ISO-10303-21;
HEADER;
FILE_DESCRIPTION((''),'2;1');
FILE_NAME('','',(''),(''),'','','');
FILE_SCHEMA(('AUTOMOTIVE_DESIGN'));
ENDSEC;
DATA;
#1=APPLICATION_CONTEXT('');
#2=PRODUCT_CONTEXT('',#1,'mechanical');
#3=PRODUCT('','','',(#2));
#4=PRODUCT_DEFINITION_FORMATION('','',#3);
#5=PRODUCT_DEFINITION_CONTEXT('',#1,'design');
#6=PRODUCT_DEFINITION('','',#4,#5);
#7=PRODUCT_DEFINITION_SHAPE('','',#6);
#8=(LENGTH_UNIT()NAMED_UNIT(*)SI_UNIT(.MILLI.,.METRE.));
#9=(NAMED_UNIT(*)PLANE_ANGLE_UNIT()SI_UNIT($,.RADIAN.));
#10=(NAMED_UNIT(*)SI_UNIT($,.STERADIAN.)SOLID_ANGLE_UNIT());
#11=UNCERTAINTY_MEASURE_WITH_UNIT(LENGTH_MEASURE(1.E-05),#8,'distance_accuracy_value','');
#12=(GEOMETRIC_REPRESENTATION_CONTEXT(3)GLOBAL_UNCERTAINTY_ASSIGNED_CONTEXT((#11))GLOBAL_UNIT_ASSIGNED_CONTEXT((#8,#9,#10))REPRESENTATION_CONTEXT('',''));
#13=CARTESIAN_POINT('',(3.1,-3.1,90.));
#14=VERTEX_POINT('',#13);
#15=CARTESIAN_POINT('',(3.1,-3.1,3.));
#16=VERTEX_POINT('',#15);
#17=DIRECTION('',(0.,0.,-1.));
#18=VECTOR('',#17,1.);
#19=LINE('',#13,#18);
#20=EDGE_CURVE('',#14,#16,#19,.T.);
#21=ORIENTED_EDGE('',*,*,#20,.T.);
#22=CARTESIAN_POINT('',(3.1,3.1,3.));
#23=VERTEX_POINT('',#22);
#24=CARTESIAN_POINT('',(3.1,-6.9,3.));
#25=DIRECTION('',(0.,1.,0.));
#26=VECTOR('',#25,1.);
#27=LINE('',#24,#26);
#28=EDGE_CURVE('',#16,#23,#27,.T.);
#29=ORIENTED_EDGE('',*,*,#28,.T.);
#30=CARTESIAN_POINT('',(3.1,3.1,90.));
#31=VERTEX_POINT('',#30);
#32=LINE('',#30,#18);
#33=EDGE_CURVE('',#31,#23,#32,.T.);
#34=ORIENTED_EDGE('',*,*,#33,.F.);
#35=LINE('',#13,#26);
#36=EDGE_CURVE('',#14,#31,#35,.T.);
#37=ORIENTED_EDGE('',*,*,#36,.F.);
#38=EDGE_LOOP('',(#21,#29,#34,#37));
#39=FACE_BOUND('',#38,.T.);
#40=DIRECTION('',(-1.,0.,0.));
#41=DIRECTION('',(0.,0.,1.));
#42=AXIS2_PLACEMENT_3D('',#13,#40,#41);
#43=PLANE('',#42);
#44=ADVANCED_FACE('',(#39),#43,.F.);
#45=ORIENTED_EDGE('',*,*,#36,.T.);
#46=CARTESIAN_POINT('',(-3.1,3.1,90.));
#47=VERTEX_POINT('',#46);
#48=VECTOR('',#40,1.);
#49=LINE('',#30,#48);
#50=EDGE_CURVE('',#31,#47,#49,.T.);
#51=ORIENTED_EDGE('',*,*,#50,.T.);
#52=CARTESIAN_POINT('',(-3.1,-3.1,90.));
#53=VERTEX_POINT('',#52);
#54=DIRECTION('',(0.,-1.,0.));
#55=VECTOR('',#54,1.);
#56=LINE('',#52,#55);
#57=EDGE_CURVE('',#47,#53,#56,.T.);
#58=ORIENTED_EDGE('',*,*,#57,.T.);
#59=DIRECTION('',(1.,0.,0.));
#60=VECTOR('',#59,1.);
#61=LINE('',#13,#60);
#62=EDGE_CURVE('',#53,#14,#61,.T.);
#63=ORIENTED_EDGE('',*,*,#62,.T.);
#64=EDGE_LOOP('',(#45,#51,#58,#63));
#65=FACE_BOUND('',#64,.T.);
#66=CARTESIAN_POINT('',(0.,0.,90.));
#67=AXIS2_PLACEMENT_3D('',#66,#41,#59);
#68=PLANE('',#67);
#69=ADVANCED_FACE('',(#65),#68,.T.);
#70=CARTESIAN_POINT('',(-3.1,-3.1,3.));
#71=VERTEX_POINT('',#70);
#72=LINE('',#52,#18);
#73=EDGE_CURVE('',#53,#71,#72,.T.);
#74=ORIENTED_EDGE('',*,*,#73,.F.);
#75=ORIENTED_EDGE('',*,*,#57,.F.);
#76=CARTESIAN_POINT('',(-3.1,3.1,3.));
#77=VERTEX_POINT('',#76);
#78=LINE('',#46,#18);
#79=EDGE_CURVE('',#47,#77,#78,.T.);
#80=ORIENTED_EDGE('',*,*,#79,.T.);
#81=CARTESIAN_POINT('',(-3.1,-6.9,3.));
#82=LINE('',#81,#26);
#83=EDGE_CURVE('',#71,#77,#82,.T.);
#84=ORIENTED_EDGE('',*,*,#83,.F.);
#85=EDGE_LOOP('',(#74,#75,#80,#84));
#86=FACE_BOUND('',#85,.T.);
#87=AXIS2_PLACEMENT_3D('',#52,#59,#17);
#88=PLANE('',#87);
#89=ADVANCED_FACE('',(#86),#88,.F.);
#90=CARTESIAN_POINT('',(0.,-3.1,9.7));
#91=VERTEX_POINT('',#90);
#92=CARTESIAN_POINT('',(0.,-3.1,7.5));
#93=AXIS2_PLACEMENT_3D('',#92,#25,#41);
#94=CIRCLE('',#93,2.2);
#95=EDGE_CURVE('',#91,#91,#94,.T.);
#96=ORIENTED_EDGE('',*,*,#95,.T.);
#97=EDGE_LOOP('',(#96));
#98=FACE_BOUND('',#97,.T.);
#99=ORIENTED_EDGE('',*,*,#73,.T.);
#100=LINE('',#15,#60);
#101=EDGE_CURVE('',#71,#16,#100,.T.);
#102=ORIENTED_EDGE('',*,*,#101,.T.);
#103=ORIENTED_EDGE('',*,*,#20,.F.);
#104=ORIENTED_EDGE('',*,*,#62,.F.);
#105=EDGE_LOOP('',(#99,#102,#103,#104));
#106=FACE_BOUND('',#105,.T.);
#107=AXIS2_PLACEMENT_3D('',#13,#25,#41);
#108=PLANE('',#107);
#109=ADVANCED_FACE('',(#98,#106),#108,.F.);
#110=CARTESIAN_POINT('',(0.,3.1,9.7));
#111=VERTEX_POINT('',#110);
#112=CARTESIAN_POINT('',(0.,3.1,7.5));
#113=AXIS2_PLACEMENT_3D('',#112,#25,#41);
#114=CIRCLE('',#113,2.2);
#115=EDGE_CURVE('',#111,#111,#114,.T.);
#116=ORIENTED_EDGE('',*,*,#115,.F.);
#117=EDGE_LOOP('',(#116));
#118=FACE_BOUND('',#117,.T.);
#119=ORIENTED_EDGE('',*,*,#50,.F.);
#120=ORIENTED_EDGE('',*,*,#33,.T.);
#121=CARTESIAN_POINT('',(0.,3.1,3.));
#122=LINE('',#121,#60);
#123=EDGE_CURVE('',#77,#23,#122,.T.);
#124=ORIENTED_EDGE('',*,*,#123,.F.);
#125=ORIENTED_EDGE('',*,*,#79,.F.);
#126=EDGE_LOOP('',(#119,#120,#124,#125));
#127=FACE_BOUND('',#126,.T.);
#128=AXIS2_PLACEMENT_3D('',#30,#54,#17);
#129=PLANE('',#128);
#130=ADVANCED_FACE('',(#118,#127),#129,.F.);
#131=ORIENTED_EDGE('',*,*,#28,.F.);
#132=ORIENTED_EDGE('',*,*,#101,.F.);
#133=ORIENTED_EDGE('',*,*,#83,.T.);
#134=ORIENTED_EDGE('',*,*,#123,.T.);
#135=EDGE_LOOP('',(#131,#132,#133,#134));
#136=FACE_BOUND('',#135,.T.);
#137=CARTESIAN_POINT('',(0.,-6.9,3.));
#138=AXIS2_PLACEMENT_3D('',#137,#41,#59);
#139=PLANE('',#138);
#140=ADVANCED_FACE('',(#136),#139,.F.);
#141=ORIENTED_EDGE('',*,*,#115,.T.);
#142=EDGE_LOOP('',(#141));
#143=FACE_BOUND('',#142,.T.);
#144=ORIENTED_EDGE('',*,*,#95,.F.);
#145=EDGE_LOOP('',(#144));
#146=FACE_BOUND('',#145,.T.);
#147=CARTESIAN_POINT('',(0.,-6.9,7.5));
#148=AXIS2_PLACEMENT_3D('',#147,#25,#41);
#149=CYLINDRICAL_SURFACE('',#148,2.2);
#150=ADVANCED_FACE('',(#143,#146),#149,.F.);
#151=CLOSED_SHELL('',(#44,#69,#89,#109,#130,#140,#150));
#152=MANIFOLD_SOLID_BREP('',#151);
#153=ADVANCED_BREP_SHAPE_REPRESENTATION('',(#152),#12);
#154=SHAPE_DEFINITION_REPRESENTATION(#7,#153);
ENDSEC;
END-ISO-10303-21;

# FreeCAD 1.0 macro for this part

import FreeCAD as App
import Part
import Sketcher
from FreeCAD import Vector
Q = App.Units.Quantity

doc = App.newDocument("Part")
body = doc.addObject("PartDesign::Body", "Body")

sketch1 = body.newObject("Sketcher::SketchObject", "Sketch")
sketch1.AttachmentSupport = (doc.getObject("XY_Plane"), [""])
sketch1.MapMode = "FlatFace"
sketch1.addGeometry([
    Part.LineSegment(Vector(-3, 3, 0), Vector(-3, -3, 0)),
    Part.LineSegment(Vector(-3, -3, 0), Vector(3, -3, 0)),
    Part.LineSegment(Vector(3, -3, 0), Vector(3, 3, 0)),
    Part.LineSegment(Vector(3, 3, 0), Vector(-3, 3, 0)),
], False)
sketch1.addConstraint([
    Sketcher.Constraint("Coincident", 0, 2, 1, 1),
    Sketcher.Constraint("Coincident", 1, 2, 2, 1),
    Sketcher.Constraint("Coincident", 2, 2, 3, 1),
    Sketcher.Constraint("Coincident", 3, 2, 0, 1),
    Sketcher.Constraint("Vertical", 0),
    Sketcher.Constraint("Horizontal", 1),
    Sketcher.Constraint("Vertical", 2),
    Sketcher.Constraint("Horizontal", 3),
    Sketcher.Constraint("Symmetric", 0, 2, 2, 2, -1, 1),
    Sketcher.Constraint("Equal", 3, 0),
    Sketcher.Constraint("DistanceX", 1, 1, 1, 2, Q("6.2 mm")),
])
pad1 = body.newObject("PartDesign::Pad", "Pad")
pad1.Profile = sketch1
pad1.Length = 90

sketch2 = body.newObject("Sketcher::SketchObject", "Sketch001")
sketch2.AttachmentSupport = (doc.getObject("XZ_Plane"), [""])
sketch2.MapMode = "FlatFace"
sketch2.AttachmentOffset = App.Placement(Vector(0, 0, -3.1), App.Rotation())
sketch2.addGeometry([
    Part.LineSegment(Vector(-3.1, 0, 0), Vector(-3.1, 3, 0)),
    Part.LineSegment(Vector(-3.1, 3, 0), Vector(3.1, 3, 0)),
    Part.LineSegment(Vector(3.1, 3, 0), Vector(3.1, 0, 0)),
    Part.LineSegment(Vector(3.1, 0, 0), Vector(-3.1, 0, 0)),
    Part.Circle(Vector(0, 7.5, 0), Vector(0, 0, 1), 2.2),
], False)
sketch2.addConstraint([
    Sketcher.Constraint("Coincident", 0, 2, 1, 1),
    Sketcher.Constraint("Coincident", 1, 2, 2, 1),
    Sketcher.Constraint("Coincident", 2, 2, 3, 1),
    Sketcher.Constraint("Coincident", 3, 2, 0, 1),
    Sketcher.Constraint("Vertical", 0),
    Sketcher.Constraint("Horizontal", 1),
    Sketcher.Constraint("Vertical", 2),
    Sketcher.Constraint("Horizontal", 3),
    Sketcher.Constraint("Symmetric", 2, 2, 3, 2, -1, 1),
    Sketcher.Constraint("PointOnObject", 4, 3, -2),
    Sketcher.Constraint("Diameter", 4, Q("4.4 mm")),
    Sketcher.Constraint("DistanceY", 0, 1, 0, 2, Q("3 mm")),
    Sketcher.Constraint("DistanceX", 1, 1, 1, 2, Q("6.2 mm")),
    Sketcher.Constraint("DistanceY", -1, 1, 4, 3, Q("7.5 mm")),
])
pocket1 = body.newObject("PartDesign::Pocket", "Pocket")
pocket1.Profile = sketch2
pocket1.Length = 10
pocket1.Reversed = True

doc.recompute()
